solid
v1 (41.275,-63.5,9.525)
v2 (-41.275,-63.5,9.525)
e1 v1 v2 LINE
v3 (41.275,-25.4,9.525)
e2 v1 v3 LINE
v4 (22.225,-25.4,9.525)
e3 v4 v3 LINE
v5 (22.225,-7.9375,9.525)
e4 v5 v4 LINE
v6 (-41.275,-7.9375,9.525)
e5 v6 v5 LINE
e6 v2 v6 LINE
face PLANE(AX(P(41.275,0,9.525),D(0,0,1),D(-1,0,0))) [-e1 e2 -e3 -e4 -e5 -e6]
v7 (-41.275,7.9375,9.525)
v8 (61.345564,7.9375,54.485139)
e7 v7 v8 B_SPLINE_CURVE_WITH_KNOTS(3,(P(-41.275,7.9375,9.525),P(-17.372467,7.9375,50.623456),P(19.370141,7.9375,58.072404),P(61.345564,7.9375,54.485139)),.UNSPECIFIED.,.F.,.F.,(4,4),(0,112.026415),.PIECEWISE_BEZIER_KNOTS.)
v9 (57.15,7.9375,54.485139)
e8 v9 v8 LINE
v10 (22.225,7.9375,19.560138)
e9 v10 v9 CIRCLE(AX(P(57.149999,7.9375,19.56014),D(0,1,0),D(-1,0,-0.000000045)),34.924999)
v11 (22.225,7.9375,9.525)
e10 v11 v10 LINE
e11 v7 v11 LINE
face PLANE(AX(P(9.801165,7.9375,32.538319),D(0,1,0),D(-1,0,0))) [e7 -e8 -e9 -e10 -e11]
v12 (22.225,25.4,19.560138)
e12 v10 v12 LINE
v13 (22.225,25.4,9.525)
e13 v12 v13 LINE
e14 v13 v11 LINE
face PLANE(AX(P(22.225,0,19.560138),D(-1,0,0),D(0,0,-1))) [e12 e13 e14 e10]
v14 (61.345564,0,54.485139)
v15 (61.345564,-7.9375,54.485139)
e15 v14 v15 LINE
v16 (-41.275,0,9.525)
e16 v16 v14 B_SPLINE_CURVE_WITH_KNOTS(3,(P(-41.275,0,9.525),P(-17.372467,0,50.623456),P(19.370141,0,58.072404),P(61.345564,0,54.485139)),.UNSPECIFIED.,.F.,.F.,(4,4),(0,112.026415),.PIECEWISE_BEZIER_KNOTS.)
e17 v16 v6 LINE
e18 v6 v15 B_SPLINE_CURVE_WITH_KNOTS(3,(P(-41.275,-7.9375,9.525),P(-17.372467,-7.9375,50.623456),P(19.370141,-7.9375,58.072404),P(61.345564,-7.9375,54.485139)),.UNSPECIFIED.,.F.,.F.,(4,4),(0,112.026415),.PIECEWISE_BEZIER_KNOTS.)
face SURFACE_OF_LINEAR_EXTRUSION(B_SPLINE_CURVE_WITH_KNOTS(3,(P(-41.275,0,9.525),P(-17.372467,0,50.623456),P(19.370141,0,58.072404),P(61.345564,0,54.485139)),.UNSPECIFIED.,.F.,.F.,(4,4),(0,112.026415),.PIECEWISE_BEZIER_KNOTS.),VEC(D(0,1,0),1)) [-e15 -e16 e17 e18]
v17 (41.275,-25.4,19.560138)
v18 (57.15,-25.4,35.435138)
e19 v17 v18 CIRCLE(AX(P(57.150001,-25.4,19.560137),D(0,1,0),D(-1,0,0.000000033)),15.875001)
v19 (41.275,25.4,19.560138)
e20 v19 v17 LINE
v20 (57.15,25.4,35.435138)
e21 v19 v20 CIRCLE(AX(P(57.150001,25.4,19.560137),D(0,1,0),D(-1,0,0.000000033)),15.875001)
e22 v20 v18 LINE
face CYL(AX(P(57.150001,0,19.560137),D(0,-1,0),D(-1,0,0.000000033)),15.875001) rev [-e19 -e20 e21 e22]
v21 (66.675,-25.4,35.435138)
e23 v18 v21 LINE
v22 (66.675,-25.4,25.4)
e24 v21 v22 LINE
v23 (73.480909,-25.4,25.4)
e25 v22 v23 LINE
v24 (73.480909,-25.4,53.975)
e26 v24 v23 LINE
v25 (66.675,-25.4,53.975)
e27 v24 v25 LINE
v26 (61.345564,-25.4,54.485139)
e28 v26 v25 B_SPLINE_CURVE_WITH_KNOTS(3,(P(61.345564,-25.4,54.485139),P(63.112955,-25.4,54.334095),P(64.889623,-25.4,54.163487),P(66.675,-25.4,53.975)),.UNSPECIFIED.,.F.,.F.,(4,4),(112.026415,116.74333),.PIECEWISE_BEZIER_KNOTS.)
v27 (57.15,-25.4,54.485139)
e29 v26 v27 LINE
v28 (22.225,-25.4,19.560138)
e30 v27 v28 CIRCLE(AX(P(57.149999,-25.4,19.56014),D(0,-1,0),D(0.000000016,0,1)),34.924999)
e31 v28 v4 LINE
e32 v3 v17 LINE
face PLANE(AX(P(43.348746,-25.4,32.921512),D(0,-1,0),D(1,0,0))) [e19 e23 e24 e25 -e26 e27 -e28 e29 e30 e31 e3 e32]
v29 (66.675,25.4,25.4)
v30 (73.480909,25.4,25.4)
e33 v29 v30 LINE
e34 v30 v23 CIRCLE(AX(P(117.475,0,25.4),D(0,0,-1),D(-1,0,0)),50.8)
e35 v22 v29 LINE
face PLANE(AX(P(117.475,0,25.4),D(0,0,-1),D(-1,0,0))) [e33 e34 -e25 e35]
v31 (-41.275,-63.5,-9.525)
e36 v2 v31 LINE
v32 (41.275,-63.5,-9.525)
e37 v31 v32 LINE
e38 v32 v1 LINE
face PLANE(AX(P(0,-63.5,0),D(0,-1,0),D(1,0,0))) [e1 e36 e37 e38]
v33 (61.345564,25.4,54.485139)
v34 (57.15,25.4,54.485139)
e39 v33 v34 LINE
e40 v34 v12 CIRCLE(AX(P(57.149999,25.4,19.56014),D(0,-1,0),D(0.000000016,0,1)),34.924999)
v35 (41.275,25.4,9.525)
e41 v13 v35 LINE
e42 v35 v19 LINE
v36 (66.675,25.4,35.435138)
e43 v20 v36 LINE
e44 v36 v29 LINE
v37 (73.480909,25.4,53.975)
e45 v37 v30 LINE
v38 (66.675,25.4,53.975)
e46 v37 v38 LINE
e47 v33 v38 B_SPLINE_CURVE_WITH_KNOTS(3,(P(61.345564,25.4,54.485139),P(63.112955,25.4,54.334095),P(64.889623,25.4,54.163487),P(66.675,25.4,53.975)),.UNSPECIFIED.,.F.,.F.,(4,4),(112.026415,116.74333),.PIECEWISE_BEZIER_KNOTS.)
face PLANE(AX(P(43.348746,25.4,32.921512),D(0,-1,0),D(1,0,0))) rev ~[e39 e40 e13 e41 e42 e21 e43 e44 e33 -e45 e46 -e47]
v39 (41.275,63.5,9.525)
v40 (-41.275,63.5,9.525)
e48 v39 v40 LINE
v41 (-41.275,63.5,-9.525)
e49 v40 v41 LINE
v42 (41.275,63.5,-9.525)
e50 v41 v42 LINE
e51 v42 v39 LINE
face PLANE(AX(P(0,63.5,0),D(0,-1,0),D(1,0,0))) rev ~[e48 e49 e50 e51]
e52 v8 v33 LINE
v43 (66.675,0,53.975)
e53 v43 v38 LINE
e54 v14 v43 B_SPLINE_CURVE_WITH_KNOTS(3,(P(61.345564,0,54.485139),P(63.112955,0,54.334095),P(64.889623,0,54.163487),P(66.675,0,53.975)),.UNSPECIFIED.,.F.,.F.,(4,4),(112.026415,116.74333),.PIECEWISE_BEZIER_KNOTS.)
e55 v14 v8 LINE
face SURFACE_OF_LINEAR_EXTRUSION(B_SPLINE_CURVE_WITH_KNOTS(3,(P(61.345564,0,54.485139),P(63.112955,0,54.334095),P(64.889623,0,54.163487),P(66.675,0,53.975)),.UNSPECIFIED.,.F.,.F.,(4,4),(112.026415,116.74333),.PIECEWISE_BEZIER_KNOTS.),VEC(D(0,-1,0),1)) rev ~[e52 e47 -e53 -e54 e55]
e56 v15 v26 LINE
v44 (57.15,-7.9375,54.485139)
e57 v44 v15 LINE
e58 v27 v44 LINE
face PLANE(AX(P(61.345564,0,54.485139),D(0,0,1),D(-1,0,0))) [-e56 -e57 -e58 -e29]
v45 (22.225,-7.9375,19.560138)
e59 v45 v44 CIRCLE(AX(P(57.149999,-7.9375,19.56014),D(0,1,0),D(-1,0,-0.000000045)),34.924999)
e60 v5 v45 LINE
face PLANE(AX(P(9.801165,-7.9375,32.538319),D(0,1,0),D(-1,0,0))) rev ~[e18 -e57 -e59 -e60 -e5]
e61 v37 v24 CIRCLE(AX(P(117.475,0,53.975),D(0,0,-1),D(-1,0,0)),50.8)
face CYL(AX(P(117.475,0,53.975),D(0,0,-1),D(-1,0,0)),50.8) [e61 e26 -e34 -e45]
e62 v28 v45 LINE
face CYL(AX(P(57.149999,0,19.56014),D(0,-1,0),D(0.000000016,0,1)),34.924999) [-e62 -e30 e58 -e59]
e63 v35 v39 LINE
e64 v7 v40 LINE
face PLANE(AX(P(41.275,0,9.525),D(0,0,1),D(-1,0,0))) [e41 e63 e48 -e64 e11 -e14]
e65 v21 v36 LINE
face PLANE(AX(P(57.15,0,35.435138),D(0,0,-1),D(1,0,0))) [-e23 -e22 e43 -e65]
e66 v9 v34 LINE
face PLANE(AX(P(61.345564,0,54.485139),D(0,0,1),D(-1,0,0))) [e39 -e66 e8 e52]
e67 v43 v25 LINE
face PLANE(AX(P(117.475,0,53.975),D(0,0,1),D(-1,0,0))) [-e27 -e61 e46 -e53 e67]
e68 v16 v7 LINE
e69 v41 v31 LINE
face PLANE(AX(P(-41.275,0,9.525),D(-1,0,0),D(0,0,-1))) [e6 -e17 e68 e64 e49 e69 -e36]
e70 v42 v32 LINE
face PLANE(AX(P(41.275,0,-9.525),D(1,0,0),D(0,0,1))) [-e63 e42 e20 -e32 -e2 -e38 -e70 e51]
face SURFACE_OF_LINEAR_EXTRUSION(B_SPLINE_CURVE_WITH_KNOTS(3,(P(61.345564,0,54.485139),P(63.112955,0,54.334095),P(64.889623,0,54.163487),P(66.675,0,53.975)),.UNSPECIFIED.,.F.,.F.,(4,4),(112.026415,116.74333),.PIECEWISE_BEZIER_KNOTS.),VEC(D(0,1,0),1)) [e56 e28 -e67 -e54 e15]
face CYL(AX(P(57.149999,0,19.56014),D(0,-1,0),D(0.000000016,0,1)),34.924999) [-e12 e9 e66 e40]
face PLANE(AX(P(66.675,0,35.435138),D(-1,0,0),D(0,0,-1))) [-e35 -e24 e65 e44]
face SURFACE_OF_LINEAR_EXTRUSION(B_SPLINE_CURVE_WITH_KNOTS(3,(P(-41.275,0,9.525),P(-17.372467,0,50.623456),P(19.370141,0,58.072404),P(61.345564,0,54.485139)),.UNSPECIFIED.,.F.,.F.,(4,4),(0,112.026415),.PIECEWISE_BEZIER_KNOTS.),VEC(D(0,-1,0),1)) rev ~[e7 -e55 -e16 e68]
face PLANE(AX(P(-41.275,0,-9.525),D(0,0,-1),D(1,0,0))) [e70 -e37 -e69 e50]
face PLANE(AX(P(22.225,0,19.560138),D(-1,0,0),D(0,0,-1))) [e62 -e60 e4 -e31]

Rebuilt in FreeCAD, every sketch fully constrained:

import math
import FreeCAD as App
import Part
import Sketcher

V = App.Vector
Q = App.Units.Quantity


def add_polygon(sketch, points):
    """Adds a closed chain of lines whose ends are joined by coincident constraints."""
    first, n = sketch.GeometryCount, len(points)
    for a, b in zip(points, points[1:] + points[:1]):
        sketch.addGeometry(Part.LineSegment(App.Vector(*a, 0), App.Vector(*b, 0)), False)
    for i in range(n):
        sketch.addConstraint(Sketcher.Constraint("Coincident", first + i, 2, first + (i + 1) % n, 1))

doc = App.newDocument("Part")
params = doc.addObject("Spreadsheet::Sheet", "Params")
for row, (alias, value) in enumerate([
    ("sketch1_width", "3.25 in"),
    ("sketch1_height", "0.75 in"),
    ("pad1_length", "5 in"),
    ("sketch2_width", "2.5 in"),
    ("sketch2_radius", "1.375 in"),
    ("pad2_length", "0.625 in"),
    ("sketch3_width", "2 in"),
    ("sketch3_radius", "0.625 in"),
    ("sketch3_radius2", "1.375 in"),
    ("pad3_length", "2 in"),
    ("sketch4_width", "2 in"),
    ("sketch4_height", "1.125 in"),
    ("revolution_angle", "360 deg"),
], start=1):
    params.set(f"A{row}", alias)
    params.set(f"B{row}", "=" + value)
    params.setAlias(f"B{row}", alias)

body = doc.addObject("PartDesign::Body", "Body")

# Sketch on XZ plane
sketch1 = doc.addObject("Sketcher::SketchObject", "Sketch")
body.addObject(sketch1)
sketch1.AttachmentSupport = (doc.XZ_Plane, [""])
sketch1.MapMode = "FlatFace"
add_polygon(sketch1, [(-41, 10), (-41, -10), (41, -10), (41, 10)])  # lines 0-3
sketch1.addConstraint([
    Sketcher.Constraint("Vertical", 0),
    Sketcher.Constraint("Horizontal", 1),
    Sketcher.Constraint("Vertical", 2),
    Sketcher.Constraint("Horizontal", 3),
    Sketcher.Constraint("Symmetric", 0, 2, 2, 2, -1, 1),
    Sketcher.Constraint("DistanceX", 1, 1, 1, 2, Q("3.25 in")),
    Sketcher.Constraint("DistanceY", 0, 2, 0, 1, Q("0.75 in")),
])
sketch1.setExpression("Constraints[9]", "Params.sketch1_width")
sketch1.setExpression("Constraints[10]", "Params.sketch1_height")
pad1 = doc.addObject("PartDesign::Pad", "Pad")
body.addObject(pad1)
pad1.Profile = sketch1
pad1.setExpression("Length", "Params.pad1_length")
pad1.Midplane = True

# Sketch on XZ plane
sketch2 = doc.addObject("Sketcher::SketchObject", "Sketch001")
body.addObject(sketch2)
sketch2.AttachmentSupport = (doc.XZ_Plane, [""])
sketch2.MapMode = "FlatFace"
sketch2.addGeometry([
    Part.BSplineCurve([V(-41.275, 9.525, 0), V(-17.372467, 50.623456, 0), V(19.370141, 58.072404, 0), V(61.345564, 54.485139, 0)], [4, 4], [0, 112.026415], False, 3, [1, 1, 1, 1], False),  # 0
    Part.LineSegment(V(-41.275, 9.525, 0), V(22.225, 9.525, 0)),  # 1
    Part.LineSegment(V(22.225, 9.525, 0), V(22.225, 19.560138, 0)),  # 2
    Part.ArcOfCircle(Part.Circle(V(57.149999, 19.56014, 0), V(0, 0, 1), 34.924999), math.radians(89.999999), math.radians(180.000003)),  # 3
    Part.LineSegment(V(57.15, 54.485139, 0), V(61.345564, 54.485139, 0)),  # 4
], False)
sketch2.addConstraint([
    Sketcher.Constraint("Block", 0),
    Sketcher.Constraint("Coincident", 0, 1, 1, 1),
    Sketcher.Constraint("Coincident", 1, 2, 2, 1),
    Sketcher.Constraint("Tangent", 2, 2, 3, 2),
    Sketcher.Constraint("Tangent", 3, 1, 4, 1),
    Sketcher.Constraint("Coincident", 4, 2, 0, 2),
    Sketcher.Constraint("Horizontal", 1),
    Sketcher.Constraint("Vertical", 2),
    Sketcher.Constraint("Horizontal", 4),
    Sketcher.Constraint("DistanceX", 1, 1, 1, 2, Q("2.5 in")),
    Sketcher.Constraint("Radius", 3, Q("1.375 in")),
])
sketch2.setExpression("Constraints[9]", "Params.sketch2_width")
sketch2.setExpression("Constraints[10]", "Params.sketch2_radius")
pad2 = doc.addObject("PartDesign::Pad", "Pad001")
body.addObject(pad2)
pad2.Profile = sketch2
pad2.setExpression("Length", "Params.pad2_length")
pad2.Midplane = True

# Sketch on XZ plane
sketch3 = doc.addObject("Sketcher::SketchObject", "Sketch002")
body.addObject(sketch3)
sketch3.AttachmentSupport = (doc.XZ_Plane, [""])
sketch3.MapMode = "FlatFace"
sketch3.addGeometry([
    Part.LineSegment(V(22.225, 19.560138, 0), V(22.225, 9.525, 0)),  # 0
    Part.LineSegment(V(22.225, 9.525, 0), V(41.275, 9.525, 0)),  # 1
    Part.LineSegment(V(41.275, 9.525, 0), V(41.275, 19.560138, 0)),  # 2
    Part.ArcOfCircle(Part.Circle(V(57.150001, 19.560137, 0), V(0, 0, 1), 15.875001), math.radians(90.000002), math.radians(179.999998)),  # 3
    Part.LineSegment(V(57.15, 35.435138, 0), V(66.675, 35.435138, 0)),  # 4
    Part.LineSegment(V(66.675, 35.435138, 0), V(66.675, 25.4, 0)),  # 5
    Part.LineSegment(V(66.675, 25.4, 0), V(117.475, 25.4, 0)),  # 6
    Part.LineSegment(V(117.475, 25.4, 0), V(117.475, 53.975, 0)),  # 7
    Part.LineSegment(V(117.475, 53.975, 0), V(66.675, 53.975, 0)),  # 8
    Part.BSplineCurve([V(61.345564, 54.485139, 0), V(63.112955, 54.334095, 0), V(64.889623, 54.163487, 0), V(66.675, 53.975, 0)], [4, 4], [112.026415, 116.74333], False, 3, [1, 1, 1, 1], False),  # 9
    Part.LineSegment(V(61.345564, 54.485139, 0), V(57.15, 54.485139, 0)),  # 10
    Part.ArcOfCircle(Part.Circle(V(57.149999, 19.56014, 0), V(0, 0, 1), 34.924999), math.radians(89.999999), math.radians(180.000003)),  # 11
], False)
sketch3.addConstraint([
    Sketcher.Constraint("Block", 9),
    Sketcher.Constraint("Coincident", 0, 2, 1, 1),
    Sketcher.Constraint("Coincident", 1, 2, 2, 1),
    Sketcher.Constraint("Tangent", 2, 2, 3, 2),
    Sketcher.Constraint("Tangent", 3, 1, 4, 1),
    Sketcher.Constraint("Coincident", 4, 2, 5, 1),
    Sketcher.Constraint("Coincident", 5, 2, 6, 1),
    Sketcher.Constraint("Coincident", 6, 2, 7, 1),
    Sketcher.Constraint("Coincident", 7, 2, 8, 1),
    Sketcher.Constraint("Coincident", 8, 2, 9, 2),
    Sketcher.Constraint("Coincident", 9, 1, 10, 1),
    Sketcher.Constraint("Tangent", 10, 2, 11, 1),
    Sketcher.Constraint("Tangent", 11, 2, 0, 1),
    Sketcher.Constraint("Vertical", 0),
    Sketcher.Constraint("Horizontal", 1),
    Sketcher.Constraint("Vertical", 2),
    Sketcher.Constraint("Horizontal", 4),
    Sketcher.Constraint("Vertical", 5),
    Sketcher.Constraint("Horizontal", 6),
    Sketcher.Constraint("Vertical", 7),
    Sketcher.Constraint("Horizontal", 8),
    Sketcher.Constraint("Horizontal", 10),
    Sketcher.Constraint("Coincident", 11, 3, 3, 3),
    Sketcher.Constraint("Vertical", 5, 2, 8, 2),
    Sketcher.Constraint("Equal", 2, 5),
    Sketcher.Constraint("DistanceX", 6, 1, 6, 2, Q("2 in")),
    Sketcher.Constraint("DistanceY", -1, 1, 5, 2, Q("1 in")),
    Sketcher.Constraint("Radius", 3, Q("0.625 in")),
    Sketcher.Constraint("Radius", 11, Q("1.375 in")),
    Sketcher.Constraint("DistanceX", 2, 2, 4, 2, Q("1 in")),
])
sketch3.setExpression("Constraints[25]", "Params.sketch3_width")
sketch3.setExpression("Constraints[27]", "Params.sketch3_radius")
sketch3.setExpression("Constraints[28]", "Params.sketch3_radius2")
pad3 = doc.addObject("PartDesign::Pad", "Pad002")
body.addObject(pad3)
pad3.Profile = sketch3
pad3.setExpression("Length", "Params.pad3_length")
pad3.Midplane = True

# Sketch on XZ plane
sketch4 = doc.addObject("Sketcher::SketchObject", "Sketch003")
body.addObject(sketch4)
sketch4.AttachmentSupport = (doc.XZ_Plane, [""])
sketch4.MapMode = "FlatFace"
add_polygon(sketch4, [(117, 54), (67, 54), (67, 25), (117, 25)])  # lines 0-3
sketch4.addGeometry(Part.LineSegment(V(117, 54, 0), V(117, 25, 0)), True)  # axis
sketch4.addConstraint([
    Sketcher.Constraint("Horizontal", 0),
    Sketcher.Constraint("Vertical", 1),
    Sketcher.Constraint("Horizontal", 2),
    Sketcher.Constraint("Vertical", 3),
    Sketcher.Constraint("Vertical", 4),
    Sketcher.Constraint("Coincident", 4, 1, 3, 2),
    Sketcher.Constraint("Horizontal", 1, 2, 4, 2),
    Sketcher.Constraint("DistanceX", 0, 2, 0, 1, Q("2 in")),
    Sketcher.Constraint("DistanceY", -1, 1, 1, 2, Q("1 in")),
    Sketcher.Constraint("DistanceY", 1, 2, 1, 1, Q("1.125 in")),
    Sketcher.Constraint("DistanceX", -1, 1, 0, 2, Q("2.625 in")),
])
sketch4.setExpression("Constraints[11]", "Params.sketch4_width")
sketch4.setExpression("Constraints[13]", "Params.sketch4_height")
revolution = doc.addObject("PartDesign::Revolution", "Revolution")
body.addObject(revolution)
revolution.Profile = sketch4
revolution.ReferenceAxis = (sketch4, ["Axis0"])
revolution.setExpression("Angle", "Params.revolution_angle")

doc.recompute()
